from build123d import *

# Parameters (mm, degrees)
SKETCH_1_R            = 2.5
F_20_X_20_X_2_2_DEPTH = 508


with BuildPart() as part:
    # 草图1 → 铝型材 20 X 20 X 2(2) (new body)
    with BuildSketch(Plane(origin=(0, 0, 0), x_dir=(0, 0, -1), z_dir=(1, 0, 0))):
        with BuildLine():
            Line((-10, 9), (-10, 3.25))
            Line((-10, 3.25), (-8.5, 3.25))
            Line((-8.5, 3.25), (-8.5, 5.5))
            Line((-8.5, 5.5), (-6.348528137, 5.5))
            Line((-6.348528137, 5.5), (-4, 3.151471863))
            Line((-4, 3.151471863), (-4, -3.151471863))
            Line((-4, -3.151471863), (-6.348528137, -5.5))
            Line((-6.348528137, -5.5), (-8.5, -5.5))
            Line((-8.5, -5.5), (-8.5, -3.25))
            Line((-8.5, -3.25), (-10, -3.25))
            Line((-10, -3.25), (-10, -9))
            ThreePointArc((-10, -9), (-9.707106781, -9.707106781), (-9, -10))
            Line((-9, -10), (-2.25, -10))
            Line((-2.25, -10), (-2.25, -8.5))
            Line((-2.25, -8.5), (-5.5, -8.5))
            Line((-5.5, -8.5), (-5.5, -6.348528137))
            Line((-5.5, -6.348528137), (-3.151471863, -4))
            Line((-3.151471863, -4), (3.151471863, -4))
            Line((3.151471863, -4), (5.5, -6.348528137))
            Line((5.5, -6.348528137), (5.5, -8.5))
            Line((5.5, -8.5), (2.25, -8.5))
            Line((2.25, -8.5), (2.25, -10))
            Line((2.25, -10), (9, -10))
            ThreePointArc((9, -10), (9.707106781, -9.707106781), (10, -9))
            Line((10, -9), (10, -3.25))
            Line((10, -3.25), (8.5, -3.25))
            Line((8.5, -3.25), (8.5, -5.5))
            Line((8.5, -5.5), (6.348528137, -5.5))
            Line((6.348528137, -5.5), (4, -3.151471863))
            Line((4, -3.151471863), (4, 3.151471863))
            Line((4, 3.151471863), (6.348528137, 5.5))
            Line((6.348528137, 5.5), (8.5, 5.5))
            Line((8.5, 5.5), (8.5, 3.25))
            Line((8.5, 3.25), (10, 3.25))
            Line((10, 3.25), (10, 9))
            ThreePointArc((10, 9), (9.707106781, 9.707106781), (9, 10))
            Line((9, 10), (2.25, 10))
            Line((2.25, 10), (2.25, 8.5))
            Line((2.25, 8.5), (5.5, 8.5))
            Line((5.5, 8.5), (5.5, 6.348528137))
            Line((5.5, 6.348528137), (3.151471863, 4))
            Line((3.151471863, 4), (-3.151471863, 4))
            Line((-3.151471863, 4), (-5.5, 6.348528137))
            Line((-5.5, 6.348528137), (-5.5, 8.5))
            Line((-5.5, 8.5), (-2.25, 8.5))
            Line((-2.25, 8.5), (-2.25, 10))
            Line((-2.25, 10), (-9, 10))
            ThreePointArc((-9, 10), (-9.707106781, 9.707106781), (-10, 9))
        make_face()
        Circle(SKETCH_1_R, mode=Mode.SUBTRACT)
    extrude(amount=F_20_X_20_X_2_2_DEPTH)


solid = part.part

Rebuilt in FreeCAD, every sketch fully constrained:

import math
import FreeCAD as App
import Part
import Sketcher

doc = App.newDocument("Part")
params = doc.addObject("Spreadsheet::Sheet", "Params")
for row, (alias, value) in enumerate([
    ("sketch1_diameter", "5 mm"),
    ("sketch1_radius", "1 mm"),
    ("sketch1_width", "1.5 mm"),
    ("sketch1_width2", "5.75 mm"),
    ("sketch1_height", "6.75 mm"),
    ("pad1_length", "508 mm"),
], start=1):
    params.set(f"A{row}", alias)
    params.set(f"B{row}", "=" + value)
    params.setAlias(f"B{row}", alias)

body = doc.addObject("PartDesign::Body", "Body")

# Sketch on YZ plane
sketch1 = doc.addObject("Sketcher::SketchObject", "Sketch")
body.addObject(sketch1)
sketch1.AttachmentSupport = (doc.YZ_Plane, [""])
sketch1.MapMode = "FlatFace"
sketch1.addGeometry(Part.LineSegment(App.Vector(9, 10, 0), App.Vector(3.2, 10, 0)), False)
sketch1.addGeometry(Part.LineSegment(App.Vector(3.2, 10, 0), App.Vector(3.2, 8.5, 0)), False)
sketch1.addGeometry(Part.LineSegment(App.Vector(3.2, 8.5, 0), App.Vector(5.5, 8.5, 0)), False)
sketch1.addGeometry(Part.LineSegment(App.Vector(5.5, 8.5, 0), App.Vector(5.5, 6.3, 0)), False)
sketch1.addGeometry(Part.LineSegment(App.Vector(5.5, 6.3, 0), App.Vector(3.2, 4, 0)), False)
sketch1.addGeometry(Part.LineSegment(App.Vector(3.2, 4, 0), App.Vector(-3.2, 4, 0)), False)
sketch1.addGeometry(Part.LineSegment(App.Vector(-3.2, 4, 0), App.Vector(-5.5, 6.3, 0)), False)
sketch1.addGeometry(Part.LineSegment(App.Vector(-5.5, 6.3, 0), App.Vector(-5.5, 8.5, 0)), False)
sketch1.addGeometry(Part.LineSegment(App.Vector(-5.5, 8.5, 0), App.Vector(-3.2, 8.5, 0)), False)
sketch1.addGeometry(Part.LineSegment(App.Vector(-3.2, 8.5, 0), App.Vector(-3.2, 10, 0)), False)
sketch1.addGeometry(Part.LineSegment(App.Vector(-3.2, 10, 0), App.Vector(-9, 10, 0)), False)
sketch1.addGeometry(Part.ArcOfCircle(Part.Circle(App.Vector(-9, 9, 0), App.Vector(0, 0, 1), 1), math.radians(90), math.radians(180)), False)
sketch1.addGeometry(Part.LineSegment(App.Vector(-10, 9, 0), App.Vector(-10, 2.2, 0)), False)
sketch1.addGeometry(Part.LineSegment(App.Vector(-10, 2.2, 0), App.Vector(-8.5, 2.2, 0)), False)
sketch1.addGeometry(Part.LineSegment(App.Vector(-8.5, 2.2, 0), App.Vector(-8.5, 5.5, 0)), False)
sketch1.addGeometry(Part.LineSegment(App.Vector(-8.5, 5.5, 0), App.Vector(-6.3, 5.5, 0)), False)
sketch1.addGeometry(Part.LineSegment(App.Vector(-6.3, 5.5, 0), App.Vector(-4, 3.2, 0)), False)
sketch1.addGeometry(Part.LineSegment(App.Vector(-4, 3.2, 0), App.Vector(-4, -3.2, 0)), False)
sketch1.addGeometry(Part.LineSegment(App.Vector(-4, -3.2, 0), App.Vector(-6.3, -5.5, 0)), False)
sketch1.addGeometry(Part.LineSegment(App.Vector(-6.3, -5.5, 0), App.Vector(-8.5, -5.5, 0)), False)
sketch1.addGeometry(Part.LineSegment(App.Vector(-8.5, -5.5, 0), App.Vector(-8.5, -2.2, 0)), False)
sketch1.addGeometry(Part.LineSegment(App.Vector(-8.5, -2.2, 0), App.Vector(-10, -2.2, 0)), False)
sketch1.addGeometry(Part.LineSegment(App.Vector(-10, -2.2, 0), App.Vector(-10, -9, 0)), False)
sketch1.addGeometry(Part.ArcOfCircle(Part.Circle(App.Vector(-9, -9, 0), App.Vector(0, 0, 1), 1), math.radians(-180), math.radians(-90)), False)
sketch1.addGeometry(Part.LineSegment(App.Vector(-9, -10, 0), App.Vector(-3.2, -10, 0)), False)
sketch1.addGeometry(Part.LineSegment(App.Vector(-3.2, -10, 0), App.Vector(-3.2, -8.5, 0)), False)
sketch1.addGeometry(Part.LineSegment(App.Vector(-3.2, -8.5, 0), App.Vector(-5.5, -8.5, 0)), False)
sketch1.addGeometry(Part.LineSegment(App.Vector(-5.5, -8.5, 0), App.Vector(-5.5, -6.3, 0)), False)
sketch1.addGeometry(Part.LineSegment(App.Vector(-5.5, -6.3, 0), App.Vector(-3.2, -4, 0)), False)
sketch1.addGeometry(Part.LineSegment(App.Vector(-3.2, -4, 0), App.Vector(3.2, -4, 0)), False)
sketch1.addGeometry(Part.LineSegment(App.Vector(3.2, -4, 0), App.Vector(5.5, -6.3, 0)), False)
sketch1.addGeometry(Part.LineSegment(App.Vector(5.5, -6.3, 0), App.Vector(5.5, -8.5, 0)), False)
sketch1.addGeometry(Part.LineSegment(App.Vector(5.5, -8.5, 0), App.Vector(3.2, -8.5, 0)), False)
sketch1.addGeometry(Part.LineSegment(App.Vector(3.2, -8.5, 0), App.Vector(3.2, -10, 0)), False)
sketch1.addGeometry(Part.LineSegment(App.Vector(3.2, -10, 0), App.Vector(9, -10, 0)), False)
sketch1.addGeometry(Part.ArcOfCircle(Part.Circle(App.Vector(9, -9, 0), App.Vector(0, 0, 1), 1), math.radians(-90), math.radians(0)), False)
sketch1.addGeometry(Part.LineSegment(App.Vector(10, -9, 0), App.Vector(10, -2.2, 0)), False)
sketch1.addGeometry(Part.LineSegment(App.Vector(10, -2.2, 0), App.Vector(8.5, -2.2, 0)), False)
sketch1.addGeometry(Part.LineSegment(App.Vector(8.5, -2.2, 0), App.Vector(8.5, -5.5, 0)), False)
sketch1.addGeometry(Part.LineSegment(App.Vector(8.5, -5.5, 0), App.Vector(6.3, -5.5, 0)), False)
sketch1.addGeometry(Part.LineSegment(App.Vector(6.3, -5.5, 0), App.Vector(4, -3.2, 0)), False)
sketch1.addGeometry(Part.LineSegment(App.Vector(4, -3.2, 0), App.Vector(4, 3.2, 0)), False)
sketch1.addGeometry(Part.LineSegment(App.Vector(4, 3.2, 0), App.Vector(6.3, 5.5, 0)), False)
sketch1.addGeometry(Part.LineSegment(App.Vector(6.3, 5.5, 0), App.Vector(8.5, 5.5, 0)), False)
sketch1.addGeometry(Part.LineSegment(App.Vector(8.5, 5.5, 0), App.Vector(8.5, 2.2, 0)), False)
sketch1.addGeometry(Part.LineSegment(App.Vector(8.5, 2.2, 0), App.Vector(10, 2.2, 0)), False)
sketch1.addGeometry(Part.LineSegment(App.Vector(10, 2.2, 0), App.Vector(10, 9, 0)), False)
sketch1.addGeometry(Part.ArcOfCircle(Part.Circle(App.Vector(9, 9, 0), App.Vector(0, 0, 1), 1), math.radians(0), math.radians(90)), False)
sketch1.addGeometry(Part.Circle(App.Vector(0, 0, 0), App.Vector(0, 0, 1), 2.5), False)
sketch1.addConstraint(Sketcher.Constraint("Coincident", 0, 2, 1, 1))
sketch1.addConstraint(Sketcher.Constraint("Coincident", 1, 2, 2, 1))
sketch1.addConstraint(Sketcher.Constraint("Coincident", 2, 2, 3, 1))
sketch1.addConstraint(Sketcher.Constraint("Coincident", 3, 2, 4, 1))
sketch1.addConstraint(Sketcher.Constraint("Coincident", 4, 2, 5, 1))
sketch1.addConstraint(Sketcher.Constraint("Coincident", 5, 2, 6, 1))
sketch1.addConstraint(Sketcher.Constraint("Coincident", 6, 2, 7, 1))
sketch1.addConstraint(Sketcher.Constraint("Coincident", 7, 2, 8, 1))
sketch1.addConstraint(Sketcher.Constraint("Coincident", 8, 2, 9, 1))
sketch1.addConstraint(Sketcher.Constraint("Coincident", 9, 2, 10, 1))
sketch1.addConstraint(Sketcher.Constraint("Tangent", 10, 2, 11, 1))
sketch1.addConstraint(Sketcher.Constraint("Tangent", 11, 2, 12, 1))
sketch1.addConstraint(Sketcher.Constraint("Coincident", 12, 2, 13, 1))
sketch1.addConstraint(Sketcher.Constraint("Coincident", 13, 2, 14, 1))
sketch1.addConstraint(Sketcher.Constraint("Coincident", 14, 2, 15, 1))
sketch1.addConstraint(Sketcher.Constraint("Coincident", 15, 2, 16, 1))
sketch1.addConstraint(Sketcher.Constraint("Coincident", 16, 2, 17, 1))
sketch1.addConstraint(Sketcher.Constraint("Coincident", 17, 2, 18, 1))
sketch1.addConstraint(Sketcher.Constraint("Coincident", 18, 2, 19, 1))
sketch1.addConstraint(Sketcher.Constraint("Coincident", 19, 2, 20, 1))
sketch1.addConstraint(Sketcher.Constraint("Coincident", 20, 2, 21, 1))
sketch1.addConstraint(Sketcher.Constraint("Coincident", 21, 2, 22, 1))
sketch1.addConstraint(Sketcher.Constraint("Tangent", 22, 2, 23, 1))
sketch1.addConstraint(Sketcher.Constraint("Tangent", 23, 2, 24, 1))
sketch1.addConstraint(Sketcher.Constraint("Coincident", 24, 2, 25, 1))
sketch1.addConstraint(Sketcher.Constraint("Coincident", 25, 2, 26, 1))
sketch1.addConstraint(Sketcher.Constraint("Coincident", 26, 2, 27, 1))
sketch1.addConstraint(Sketcher.Constraint("Coincident", 27, 2, 28, 1))
sketch1.addConstraint(Sketcher.Constraint("Coincident", 28, 2, 29, 1))
sketch1.addConstraint(Sketcher.Constraint("Coincident", 29, 2, 30, 1))
sketch1.addConstraint(Sketcher.Constraint("Coincident", 30, 2, 31, 1))
sketch1.addConstraint(Sketcher.Constraint("Coincident", 31, 2, 32, 1))
sketch1.addConstraint(Sketcher.Constraint("Coincident", 32, 2, 33, 1))
sketch1.addConstraint(Sketcher.Constraint("Coincident", 33, 2, 34, 1))
sketch1.addConstraint(Sketcher.Constraint("Tangent", 34, 2, 35, 1))
sketch1.addConstraint(Sketcher.Constraint("Tangent", 35, 2, 36, 1))
sketch1.addConstraint(Sketcher.Constraint("Coincident", 36, 2, 37, 1))
sketch1.addConstraint(Sketcher.Constraint("Coincident", 37, 2, 38, 1))
sketch1.addConstraint(Sketcher.Constraint("Coincident", 38, 2, 39, 1))
sketch1.addConstraint(Sketcher.Constraint("Coincident", 39, 2, 40, 1))
sketch1.addConstraint(Sketcher.Constraint("Coincident", 40, 2, 41, 1))
sketch1.addConstraint(Sketcher.Constraint("Coincident", 41, 2, 42, 1))
sketch1.addConstraint(Sketcher.Constraint("Coincident", 42, 2, 43, 1))
sketch1.addConstraint(Sketcher.Constraint("Coincident", 43, 2, 44, 1))
sketch1.addConstraint(Sketcher.Constraint("Coincident", 44, 2, 45, 1))
sketch1.addConstraint(Sketcher.Constraint("Coincident", 45, 2, 46, 1))
sketch1.addConstraint(Sketcher.Constraint("Tangent", 46, 2, 47, 1))
sketch1.addConstraint(Sketcher.Constraint("Tangent", 47, 2, 0, 1))
sketch1.addConstraint(Sketcher.Constraint("Horizontal", 0))
sketch1.addConstraint(Sketcher.Constraint("Vertical", 1))
sketch1.addConstraint(Sketcher.Constraint("Horizontal", 2))
sketch1.addConstraint(Sketcher.Constraint("Vertical", 3))
sketch1.addConstraint(Sketcher.Constraint("Horizontal", 5))
sketch1.addConstraint(Sketcher.Constraint("Vertical", 7))
sketch1.addConstraint(Sketcher.Constraint("Horizontal", 8))
sketch1.addConstraint(Sketcher.Constraint("Vertical", 9))
sketch1.addConstraint(Sketcher.Constraint("Horizontal", 10))
sketch1.addConstraint(Sketcher.Constraint("Vertical", 12))
sketch1.addConstraint(Sketcher.Constraint("Horizontal", 13))
sketch1.addConstraint(Sketcher.Constraint("Vertical", 14))
sketch1.addConstraint(Sketcher.Constraint("Horizontal", 15))
sketch1.addConstraint(Sketcher.Constraint("Vertical", 17))
sketch1.addConstraint(Sketcher.Constraint("Horizontal", 19))
sketch1.addConstraint(Sketcher.Constraint("Vertical", 20))
sketch1.addConstraint(Sketcher.Constraint("Horizontal", 21))
sketch1.addConstraint(Sketcher.Constraint("Vertical", 22))
sketch1.addConstraint(Sketcher.Constraint("Horizontal", 24))
sketch1.addConstraint(Sketcher.Constraint("Vertical", 25))
sketch1.addConstraint(Sketcher.Constraint("Horizontal", 26))
sketch1.addConstraint(Sketcher.Constraint("Vertical", 27))
sketch1.addConstraint(Sketcher.Constraint("Horizontal", 29))
sketch1.addConstraint(Sketcher.Constraint("Vertical", 31))
sketch1.addConstraint(Sketcher.Constraint("Horizontal", 32))
sketch1.addConstraint(Sketcher.Constraint("Vertical", 33))
sketch1.addConstraint(Sketcher.Constraint("Horizontal", 34))
sketch1.addConstraint(Sketcher.Constraint("Vertical", 36))
sketch1.addConstraint(Sketcher.Constraint("Horizontal", 37))
sketch1.addConstraint(Sketcher.Constraint("Vertical", 38))
sketch1.addConstraint(Sketcher.Constraint("Horizontal", 39))
sketch1.addConstraint(Sketcher.Constraint("Vertical", 41))
sketch1.addConstraint(Sketcher.Constraint("Horizontal", 43))
sketch1.addConstraint(Sketcher.Constraint("Vertical", 44))
sketch1.addConstraint(Sketcher.Constraint("Horizontal", 45))
sketch1.addConstraint(Sketcher.Constraint("Vertical", 46))
sketch1.addConstraint(Sketcher.Constraint("Coincident", 48, 3, -1, 1))
sketch1.addConstraint(Sketcher.Constraint("Equal", 11, 23))
sketch1.addConstraint(Sketcher.Constraint("Equal", 23, 35))
sketch1.addConstraint(Sketcher.Constraint("Equal", 35, 47))
sketch1.addConstraint(Sketcher.Constraint("Symmetric", 11, 3, 35, 3, -1, 1))
sketch1.addConstraint(Sketcher.Constraint("Symmetric", 23, 3, 47, 3, -1, 1))
sketch1.addConstraint(Sketcher.Constraint("Symmetric", 1, 2, 25, 2, -1, 1))
sketch1.addConstraint(Sketcher.Constraint("Symmetric", 3, 2, 27, 2, -1, 1))
sketch1.addConstraint(Sketcher.Constraint("Symmetric", 4, 2, 28, 2, -1, 1))
sketch1.addConstraint(Sketcher.Constraint("Symmetric", 6, 2, 30, 2, -1, 1))
sketch1.addConstraint(Sketcher.Constraint("Symmetric", 8, 2, 32, 2, -1, 1))
sketch1.addConstraint(Sketcher.Constraint("Symmetric", 13, 2, 37, 2, -1, 1))
sketch1.addConstraint(Sketcher.Constraint("Symmetric", 15, 2, 39, 2, -1, 1))
sketch1.addConstraint(Sketcher.Constraint("Symmetric", 16, 2, 40, 2, -1, 1))
sketch1.addConstraint(Sketcher.Constraint("Symmetric", 18, 2, 42, 2, -1, 1))
sketch1.addConstraint(Sketcher.Constraint("Symmetric", 20, 2, 44, 2, -1, 1))
sketch1.addConstraint(Sketcher.Constraint("Symmetric", 23, 3, 35, 3, -2))
sketch1.addConstraint(Sketcher.Constraint("Symmetric", 3, 2, 6, 2, -2))
sketch1.addConstraint(Sketcher.Constraint("Symmetric", 1, 2, 8, 2, -2))
sketch1.addConstraint(Sketcher.Constraint("Symmetric", 20, 2, 37, 2, -2))
sketch1.addConstraint(Sketcher.Constraint("Symmetric", 18, 2, 39, 2, -2))
sketch1.addConstraint(Sketcher.Constraint("Perpendicular", 4, 6))
sketch1.addConstraint(Sketcher.Constraint("Parallel", 6, 16))
sketch1.addConstraint(Sketcher.Constraint("Perpendicular", 16, 18))
sketch1.addConstraint(Sketcher.Constraint("Perpendicular", 28, 30))
sketch1.addConstraint(Sketcher.Constraint("Perpendicular", 40, 42))
sketch1.addConstraint(Sketcher.Constraint("Horizontal", 17, 2, 40, 2))
sketch1.addConstraint(Sketcher.Constraint("Equal", 45, 1))
sketch1.addConstraint(Sketcher.Constraint("Equal", 43, 3))
sketch1.addConstraint(Sketcher.Constraint("Equal", 29, 17))
sketch1.addConstraint(Sketcher.Constraint("Equal", 6, 16))
sketch1.addConstraint(Sketcher.Constraint("Diameter", 48, 5.0))
sketch1.addConstraint(Sketcher.Constraint("Radius", 11, 1.0))
sketch1.addConstraint(Sketcher.Constraint("DistanceX", 13, 1, 13, 2, 1.5))
sketch1.addConstraint(Sketcher.Constraint("DistanceX", 11, 3, -1, 1, 9.0))
sketch1.addConstraint(Sketcher.Constraint("DistanceY", -1, 1, 11, 3, 9.0))
sketch1.addConstraint(Sketcher.Constraint("DistanceY", -1, 1, 4, 2, 4.0))
sketch1.addConstraint(Sketcher.Constraint("DistanceX", 13, 2, 6, 2, 3.0))
sketch1.addConstraint(Sketcher.Constraint("DistanceX", 0, 2, 0, 1, 5.75))
sketch1.addConstraint(Sketcher.Constraint("DistanceY", 12, 2, 12, 1, 6.75))
sketch1.addConstraint(Sketcher.Constraint("DistanceX", 15, 1, 15, 2, 2.151472))
sketch1.setExpression("Constraints[115]", "Params.sketch1_diameter")
sketch1.setExpression("Constraints[116]", "Params.sketch1_radius")
sketch1.setExpression("Constraints[117]", "Params.sketch1_width")
sketch1.setExpression("Constraints[122]", "Params.sketch1_width2")
sketch1.setExpression("Constraints[123]", "Params.sketch1_height")
pad1 = doc.addObject("PartDesign::Pad", "Pad")
body.addObject(pad1)
pad1.Profile = sketch1
pad1.setExpression("Length", "Params.pad1_length")

doc.recompute()
